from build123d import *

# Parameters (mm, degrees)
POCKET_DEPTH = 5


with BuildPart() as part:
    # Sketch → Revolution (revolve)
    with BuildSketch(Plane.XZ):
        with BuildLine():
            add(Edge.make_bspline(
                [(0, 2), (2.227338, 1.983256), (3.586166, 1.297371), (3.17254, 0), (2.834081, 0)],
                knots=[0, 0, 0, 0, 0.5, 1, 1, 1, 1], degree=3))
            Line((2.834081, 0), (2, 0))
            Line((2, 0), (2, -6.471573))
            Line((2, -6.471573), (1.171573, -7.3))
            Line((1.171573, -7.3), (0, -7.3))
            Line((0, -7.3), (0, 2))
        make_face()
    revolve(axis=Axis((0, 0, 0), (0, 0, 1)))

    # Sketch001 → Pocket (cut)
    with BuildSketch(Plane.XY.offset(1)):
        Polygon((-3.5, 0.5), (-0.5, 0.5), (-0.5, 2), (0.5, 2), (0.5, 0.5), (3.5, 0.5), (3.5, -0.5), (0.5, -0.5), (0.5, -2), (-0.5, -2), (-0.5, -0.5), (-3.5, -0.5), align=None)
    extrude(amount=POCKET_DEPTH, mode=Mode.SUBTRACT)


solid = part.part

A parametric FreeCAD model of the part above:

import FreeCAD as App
import Part
import Sketcher
from FreeCAD import Vector
Q = App.Units.Quantity

doc = App.newDocument("Part")
body = doc.addObject("PartDesign::Body", "Body")

# Sketch on XZ plane
sketch1 = doc.addObject("Sketcher::SketchObject", "Sketch")
body.addObject(sketch1)
sketch1.AttachmentSupport = (doc.XZ_Plane, [""])
sketch1.MapMode = "FlatFace"
sketch1.addGeometry([
    Part.BSplineCurve([Vector(0, 2, 0), Vector(2.227338, 1.983256, 0), Vector(3.586166, 1.297371, 0), Vector(3.17254, 0, 0), Vector(2.834081, 0, 0)], [4, 1, 4], [0, 0.5, 1], False, 3, [1, 1, 1, 1, 1], False),  # 0
    Part.LineSegment(Vector(0, 2, 0), Vector(0, -7.3, 0)),  # 1
    Part.LineSegment(Vector(0, -7.3, 0), Vector(1.171573, -7.3, 0)),  # 2
    Part.LineSegment(Vector(1.171573, -7.3, 0), Vector(2, -6.471573, 0)),  # 3
    Part.LineSegment(Vector(2, -6.471573, 0), Vector(2, 0, 0)),  # 4
    Part.LineSegment(Vector(2, 0, 0), Vector(2.834081, 0, 0)),  # 5
], False)
sketch1.addConstraint([
    Sketcher.Constraint("Block", 0),
    Sketcher.Constraint("Coincident", 0, 1, 1, 1),
    Sketcher.Constraint("Coincident", 1, 2, 2, 1),
    Sketcher.Constraint("Coincident", 2, 2, 3, 1),
    Sketcher.Constraint("Coincident", 3, 2, 4, 1),
    Sketcher.Constraint("Coincident", 4, 2, 5, 1),
    Sketcher.Constraint("Coincident", 5, 2, 0, 2),
    Sketcher.Constraint("Vertical", 1),
    Sketcher.Constraint("Horizontal", 2),
    Sketcher.Constraint("Vertical", 4),
    Sketcher.Constraint("Horizontal", 5),
    Sketcher.Constraint("Angle", 3, Q("45 deg")),
    Sketcher.Constraint("DistanceY", 1, 2, 1, 1, 9.3),
    Sketcher.Constraint("DistanceX", -1, 1, 3, 2, 2.0),
    Sketcher.Constraint("DistanceX", 2, 1, 2, 2, 1.171573),
])
revolution = doc.addObject("PartDesign::Revolution", "Revolution")
body.addObject(revolution)
revolution.Profile = sketch1
revolution.ReferenceAxis = (sketch1, ["V_Axis"])
revolution.Angle = 360

# Sketch on XY plane
sketch2 = doc.addObject("Sketcher::SketchObject", "Sketch001")
body.addObject(sketch2)
sketch2.AttachmentSupport = (doc.XY_Plane, [""])
sketch2.MapMode = "FlatFace"
sketch2.AttachmentOffset = App.Placement(Vector(0, 0, 1), App.Rotation())
sketch2.addGeometry([
    Part.LineSegment(Vector(-0.5, 0.5, 0), Vector(-3.5, 0.5, 0)),  # 0
    Part.LineSegment(Vector(-3.5, 0.5, 0), Vector(-3.5, -0.5, 0)),  # 1
    Part.LineSegment(Vector(-3.5, -0.5, 0), Vector(-0.5, -0.5, 0)),  # 2
    Part.LineSegment(Vector(-0.5, -0.5, 0), Vector(-0.5, -2, 0)),  # 3
    Part.LineSegment(Vector(-0.5, -2, 0), Vector(0.5, -2, 0)),  # 4
    Part.LineSegment(Vector(0.5, -2, 0), Vector(0.5, -0.5, 0)),  # 5
    Part.LineSegment(Vector(0.5, -0.5, 0), Vector(3.5, -0.5, 0)),  # 6
    Part.LineSegment(Vector(3.5, -0.5, 0), Vector(3.5, 0.5, 0)),  # 7
    Part.LineSegment(Vector(3.5, 0.5, 0), Vector(0.5, 0.5, 0)),  # 8
    Part.LineSegment(Vector(0.5, 0.5, 0), Vector(0.5, 2, 0)),  # 9
    Part.LineSegment(Vector(0.5, 2, 0), Vector(-0.5, 2, 0)),  # 10
    Part.LineSegment(Vector(-0.5, 2, 0), Vector(-0.5, 0.5, 0)),  # 11
], False)
sketch2.addConstraint([
    Sketcher.Constraint("Coincident", 0, 2, 1, 1),
    Sketcher.Constraint("Coincident", 1, 2, 2, 1),
    Sketcher.Constraint("Coincident", 2, 2, 3, 1),
    Sketcher.Constraint("Coincident", 3, 2, 4, 1),
    Sketcher.Constraint("Coincident", 4, 2, 5, 1),
    Sketcher.Constraint("Coincident", 5, 2, 6, 1),
    Sketcher.Constraint("Coincident", 6, 2, 7, 1),
    Sketcher.Constraint("Coincident", 7, 2, 8, 1),
    Sketcher.Constraint("Coincident", 8, 2, 9, 1),
    Sketcher.Constraint("Coincident", 9, 2, 10, 1),
    Sketcher.Constraint("Coincident", 10, 2, 11, 1),
    Sketcher.Constraint("Coincident", 11, 2, 0, 1),
    Sketcher.Constraint("Horizontal", 0),
    Sketcher.Constraint("Vertical", 1),
    Sketcher.Constraint("Horizontal", 2),
    Sketcher.Constraint("Vertical", 3),
    Sketcher.Constraint("Horizontal", 4),
    Sketcher.Constraint("Vertical", 5),
    Sketcher.Constraint("Horizontal", 6),
    Sketcher.Constraint("Vertical", 7),
    Sketcher.Constraint("Horizontal", 8),
    Sketcher.Constraint("Vertical", 9),
    Sketcher.Constraint("Horizontal", 10),
    Sketcher.Constraint("Vertical", 11),
    Sketcher.Constraint("Symmetric", 0, 2, 6, 2, -1, 1),
    Sketcher.Constraint("Symmetric", 2, 2, 8, 2, -1, 1),
    Sketcher.Constraint("Symmetric", 4, 2, 10, 2, -1, 1),
    Sketcher.Constraint("Symmetric", 2, 2, 5, 2, -2),
    Sketcher.Constraint("Equal", 10, 1),
    Sketcher.Constraint("DistanceX", 0, 2, 0, 1, 3.0),
    Sketcher.Constraint("DistanceX", 4, 1, 4, 2, 1.0),
    Sketcher.Constraint("DistanceY", 3, 2, 3, 1, 1.5),
])
pocket1 = doc.addObject("PartDesign::Pocket", "Pocket")
body.addObject(pocket1)
pocket1.Profile = sketch2
pocket1.Length = 5
pocket1.Reversed = True

doc.recompute()
